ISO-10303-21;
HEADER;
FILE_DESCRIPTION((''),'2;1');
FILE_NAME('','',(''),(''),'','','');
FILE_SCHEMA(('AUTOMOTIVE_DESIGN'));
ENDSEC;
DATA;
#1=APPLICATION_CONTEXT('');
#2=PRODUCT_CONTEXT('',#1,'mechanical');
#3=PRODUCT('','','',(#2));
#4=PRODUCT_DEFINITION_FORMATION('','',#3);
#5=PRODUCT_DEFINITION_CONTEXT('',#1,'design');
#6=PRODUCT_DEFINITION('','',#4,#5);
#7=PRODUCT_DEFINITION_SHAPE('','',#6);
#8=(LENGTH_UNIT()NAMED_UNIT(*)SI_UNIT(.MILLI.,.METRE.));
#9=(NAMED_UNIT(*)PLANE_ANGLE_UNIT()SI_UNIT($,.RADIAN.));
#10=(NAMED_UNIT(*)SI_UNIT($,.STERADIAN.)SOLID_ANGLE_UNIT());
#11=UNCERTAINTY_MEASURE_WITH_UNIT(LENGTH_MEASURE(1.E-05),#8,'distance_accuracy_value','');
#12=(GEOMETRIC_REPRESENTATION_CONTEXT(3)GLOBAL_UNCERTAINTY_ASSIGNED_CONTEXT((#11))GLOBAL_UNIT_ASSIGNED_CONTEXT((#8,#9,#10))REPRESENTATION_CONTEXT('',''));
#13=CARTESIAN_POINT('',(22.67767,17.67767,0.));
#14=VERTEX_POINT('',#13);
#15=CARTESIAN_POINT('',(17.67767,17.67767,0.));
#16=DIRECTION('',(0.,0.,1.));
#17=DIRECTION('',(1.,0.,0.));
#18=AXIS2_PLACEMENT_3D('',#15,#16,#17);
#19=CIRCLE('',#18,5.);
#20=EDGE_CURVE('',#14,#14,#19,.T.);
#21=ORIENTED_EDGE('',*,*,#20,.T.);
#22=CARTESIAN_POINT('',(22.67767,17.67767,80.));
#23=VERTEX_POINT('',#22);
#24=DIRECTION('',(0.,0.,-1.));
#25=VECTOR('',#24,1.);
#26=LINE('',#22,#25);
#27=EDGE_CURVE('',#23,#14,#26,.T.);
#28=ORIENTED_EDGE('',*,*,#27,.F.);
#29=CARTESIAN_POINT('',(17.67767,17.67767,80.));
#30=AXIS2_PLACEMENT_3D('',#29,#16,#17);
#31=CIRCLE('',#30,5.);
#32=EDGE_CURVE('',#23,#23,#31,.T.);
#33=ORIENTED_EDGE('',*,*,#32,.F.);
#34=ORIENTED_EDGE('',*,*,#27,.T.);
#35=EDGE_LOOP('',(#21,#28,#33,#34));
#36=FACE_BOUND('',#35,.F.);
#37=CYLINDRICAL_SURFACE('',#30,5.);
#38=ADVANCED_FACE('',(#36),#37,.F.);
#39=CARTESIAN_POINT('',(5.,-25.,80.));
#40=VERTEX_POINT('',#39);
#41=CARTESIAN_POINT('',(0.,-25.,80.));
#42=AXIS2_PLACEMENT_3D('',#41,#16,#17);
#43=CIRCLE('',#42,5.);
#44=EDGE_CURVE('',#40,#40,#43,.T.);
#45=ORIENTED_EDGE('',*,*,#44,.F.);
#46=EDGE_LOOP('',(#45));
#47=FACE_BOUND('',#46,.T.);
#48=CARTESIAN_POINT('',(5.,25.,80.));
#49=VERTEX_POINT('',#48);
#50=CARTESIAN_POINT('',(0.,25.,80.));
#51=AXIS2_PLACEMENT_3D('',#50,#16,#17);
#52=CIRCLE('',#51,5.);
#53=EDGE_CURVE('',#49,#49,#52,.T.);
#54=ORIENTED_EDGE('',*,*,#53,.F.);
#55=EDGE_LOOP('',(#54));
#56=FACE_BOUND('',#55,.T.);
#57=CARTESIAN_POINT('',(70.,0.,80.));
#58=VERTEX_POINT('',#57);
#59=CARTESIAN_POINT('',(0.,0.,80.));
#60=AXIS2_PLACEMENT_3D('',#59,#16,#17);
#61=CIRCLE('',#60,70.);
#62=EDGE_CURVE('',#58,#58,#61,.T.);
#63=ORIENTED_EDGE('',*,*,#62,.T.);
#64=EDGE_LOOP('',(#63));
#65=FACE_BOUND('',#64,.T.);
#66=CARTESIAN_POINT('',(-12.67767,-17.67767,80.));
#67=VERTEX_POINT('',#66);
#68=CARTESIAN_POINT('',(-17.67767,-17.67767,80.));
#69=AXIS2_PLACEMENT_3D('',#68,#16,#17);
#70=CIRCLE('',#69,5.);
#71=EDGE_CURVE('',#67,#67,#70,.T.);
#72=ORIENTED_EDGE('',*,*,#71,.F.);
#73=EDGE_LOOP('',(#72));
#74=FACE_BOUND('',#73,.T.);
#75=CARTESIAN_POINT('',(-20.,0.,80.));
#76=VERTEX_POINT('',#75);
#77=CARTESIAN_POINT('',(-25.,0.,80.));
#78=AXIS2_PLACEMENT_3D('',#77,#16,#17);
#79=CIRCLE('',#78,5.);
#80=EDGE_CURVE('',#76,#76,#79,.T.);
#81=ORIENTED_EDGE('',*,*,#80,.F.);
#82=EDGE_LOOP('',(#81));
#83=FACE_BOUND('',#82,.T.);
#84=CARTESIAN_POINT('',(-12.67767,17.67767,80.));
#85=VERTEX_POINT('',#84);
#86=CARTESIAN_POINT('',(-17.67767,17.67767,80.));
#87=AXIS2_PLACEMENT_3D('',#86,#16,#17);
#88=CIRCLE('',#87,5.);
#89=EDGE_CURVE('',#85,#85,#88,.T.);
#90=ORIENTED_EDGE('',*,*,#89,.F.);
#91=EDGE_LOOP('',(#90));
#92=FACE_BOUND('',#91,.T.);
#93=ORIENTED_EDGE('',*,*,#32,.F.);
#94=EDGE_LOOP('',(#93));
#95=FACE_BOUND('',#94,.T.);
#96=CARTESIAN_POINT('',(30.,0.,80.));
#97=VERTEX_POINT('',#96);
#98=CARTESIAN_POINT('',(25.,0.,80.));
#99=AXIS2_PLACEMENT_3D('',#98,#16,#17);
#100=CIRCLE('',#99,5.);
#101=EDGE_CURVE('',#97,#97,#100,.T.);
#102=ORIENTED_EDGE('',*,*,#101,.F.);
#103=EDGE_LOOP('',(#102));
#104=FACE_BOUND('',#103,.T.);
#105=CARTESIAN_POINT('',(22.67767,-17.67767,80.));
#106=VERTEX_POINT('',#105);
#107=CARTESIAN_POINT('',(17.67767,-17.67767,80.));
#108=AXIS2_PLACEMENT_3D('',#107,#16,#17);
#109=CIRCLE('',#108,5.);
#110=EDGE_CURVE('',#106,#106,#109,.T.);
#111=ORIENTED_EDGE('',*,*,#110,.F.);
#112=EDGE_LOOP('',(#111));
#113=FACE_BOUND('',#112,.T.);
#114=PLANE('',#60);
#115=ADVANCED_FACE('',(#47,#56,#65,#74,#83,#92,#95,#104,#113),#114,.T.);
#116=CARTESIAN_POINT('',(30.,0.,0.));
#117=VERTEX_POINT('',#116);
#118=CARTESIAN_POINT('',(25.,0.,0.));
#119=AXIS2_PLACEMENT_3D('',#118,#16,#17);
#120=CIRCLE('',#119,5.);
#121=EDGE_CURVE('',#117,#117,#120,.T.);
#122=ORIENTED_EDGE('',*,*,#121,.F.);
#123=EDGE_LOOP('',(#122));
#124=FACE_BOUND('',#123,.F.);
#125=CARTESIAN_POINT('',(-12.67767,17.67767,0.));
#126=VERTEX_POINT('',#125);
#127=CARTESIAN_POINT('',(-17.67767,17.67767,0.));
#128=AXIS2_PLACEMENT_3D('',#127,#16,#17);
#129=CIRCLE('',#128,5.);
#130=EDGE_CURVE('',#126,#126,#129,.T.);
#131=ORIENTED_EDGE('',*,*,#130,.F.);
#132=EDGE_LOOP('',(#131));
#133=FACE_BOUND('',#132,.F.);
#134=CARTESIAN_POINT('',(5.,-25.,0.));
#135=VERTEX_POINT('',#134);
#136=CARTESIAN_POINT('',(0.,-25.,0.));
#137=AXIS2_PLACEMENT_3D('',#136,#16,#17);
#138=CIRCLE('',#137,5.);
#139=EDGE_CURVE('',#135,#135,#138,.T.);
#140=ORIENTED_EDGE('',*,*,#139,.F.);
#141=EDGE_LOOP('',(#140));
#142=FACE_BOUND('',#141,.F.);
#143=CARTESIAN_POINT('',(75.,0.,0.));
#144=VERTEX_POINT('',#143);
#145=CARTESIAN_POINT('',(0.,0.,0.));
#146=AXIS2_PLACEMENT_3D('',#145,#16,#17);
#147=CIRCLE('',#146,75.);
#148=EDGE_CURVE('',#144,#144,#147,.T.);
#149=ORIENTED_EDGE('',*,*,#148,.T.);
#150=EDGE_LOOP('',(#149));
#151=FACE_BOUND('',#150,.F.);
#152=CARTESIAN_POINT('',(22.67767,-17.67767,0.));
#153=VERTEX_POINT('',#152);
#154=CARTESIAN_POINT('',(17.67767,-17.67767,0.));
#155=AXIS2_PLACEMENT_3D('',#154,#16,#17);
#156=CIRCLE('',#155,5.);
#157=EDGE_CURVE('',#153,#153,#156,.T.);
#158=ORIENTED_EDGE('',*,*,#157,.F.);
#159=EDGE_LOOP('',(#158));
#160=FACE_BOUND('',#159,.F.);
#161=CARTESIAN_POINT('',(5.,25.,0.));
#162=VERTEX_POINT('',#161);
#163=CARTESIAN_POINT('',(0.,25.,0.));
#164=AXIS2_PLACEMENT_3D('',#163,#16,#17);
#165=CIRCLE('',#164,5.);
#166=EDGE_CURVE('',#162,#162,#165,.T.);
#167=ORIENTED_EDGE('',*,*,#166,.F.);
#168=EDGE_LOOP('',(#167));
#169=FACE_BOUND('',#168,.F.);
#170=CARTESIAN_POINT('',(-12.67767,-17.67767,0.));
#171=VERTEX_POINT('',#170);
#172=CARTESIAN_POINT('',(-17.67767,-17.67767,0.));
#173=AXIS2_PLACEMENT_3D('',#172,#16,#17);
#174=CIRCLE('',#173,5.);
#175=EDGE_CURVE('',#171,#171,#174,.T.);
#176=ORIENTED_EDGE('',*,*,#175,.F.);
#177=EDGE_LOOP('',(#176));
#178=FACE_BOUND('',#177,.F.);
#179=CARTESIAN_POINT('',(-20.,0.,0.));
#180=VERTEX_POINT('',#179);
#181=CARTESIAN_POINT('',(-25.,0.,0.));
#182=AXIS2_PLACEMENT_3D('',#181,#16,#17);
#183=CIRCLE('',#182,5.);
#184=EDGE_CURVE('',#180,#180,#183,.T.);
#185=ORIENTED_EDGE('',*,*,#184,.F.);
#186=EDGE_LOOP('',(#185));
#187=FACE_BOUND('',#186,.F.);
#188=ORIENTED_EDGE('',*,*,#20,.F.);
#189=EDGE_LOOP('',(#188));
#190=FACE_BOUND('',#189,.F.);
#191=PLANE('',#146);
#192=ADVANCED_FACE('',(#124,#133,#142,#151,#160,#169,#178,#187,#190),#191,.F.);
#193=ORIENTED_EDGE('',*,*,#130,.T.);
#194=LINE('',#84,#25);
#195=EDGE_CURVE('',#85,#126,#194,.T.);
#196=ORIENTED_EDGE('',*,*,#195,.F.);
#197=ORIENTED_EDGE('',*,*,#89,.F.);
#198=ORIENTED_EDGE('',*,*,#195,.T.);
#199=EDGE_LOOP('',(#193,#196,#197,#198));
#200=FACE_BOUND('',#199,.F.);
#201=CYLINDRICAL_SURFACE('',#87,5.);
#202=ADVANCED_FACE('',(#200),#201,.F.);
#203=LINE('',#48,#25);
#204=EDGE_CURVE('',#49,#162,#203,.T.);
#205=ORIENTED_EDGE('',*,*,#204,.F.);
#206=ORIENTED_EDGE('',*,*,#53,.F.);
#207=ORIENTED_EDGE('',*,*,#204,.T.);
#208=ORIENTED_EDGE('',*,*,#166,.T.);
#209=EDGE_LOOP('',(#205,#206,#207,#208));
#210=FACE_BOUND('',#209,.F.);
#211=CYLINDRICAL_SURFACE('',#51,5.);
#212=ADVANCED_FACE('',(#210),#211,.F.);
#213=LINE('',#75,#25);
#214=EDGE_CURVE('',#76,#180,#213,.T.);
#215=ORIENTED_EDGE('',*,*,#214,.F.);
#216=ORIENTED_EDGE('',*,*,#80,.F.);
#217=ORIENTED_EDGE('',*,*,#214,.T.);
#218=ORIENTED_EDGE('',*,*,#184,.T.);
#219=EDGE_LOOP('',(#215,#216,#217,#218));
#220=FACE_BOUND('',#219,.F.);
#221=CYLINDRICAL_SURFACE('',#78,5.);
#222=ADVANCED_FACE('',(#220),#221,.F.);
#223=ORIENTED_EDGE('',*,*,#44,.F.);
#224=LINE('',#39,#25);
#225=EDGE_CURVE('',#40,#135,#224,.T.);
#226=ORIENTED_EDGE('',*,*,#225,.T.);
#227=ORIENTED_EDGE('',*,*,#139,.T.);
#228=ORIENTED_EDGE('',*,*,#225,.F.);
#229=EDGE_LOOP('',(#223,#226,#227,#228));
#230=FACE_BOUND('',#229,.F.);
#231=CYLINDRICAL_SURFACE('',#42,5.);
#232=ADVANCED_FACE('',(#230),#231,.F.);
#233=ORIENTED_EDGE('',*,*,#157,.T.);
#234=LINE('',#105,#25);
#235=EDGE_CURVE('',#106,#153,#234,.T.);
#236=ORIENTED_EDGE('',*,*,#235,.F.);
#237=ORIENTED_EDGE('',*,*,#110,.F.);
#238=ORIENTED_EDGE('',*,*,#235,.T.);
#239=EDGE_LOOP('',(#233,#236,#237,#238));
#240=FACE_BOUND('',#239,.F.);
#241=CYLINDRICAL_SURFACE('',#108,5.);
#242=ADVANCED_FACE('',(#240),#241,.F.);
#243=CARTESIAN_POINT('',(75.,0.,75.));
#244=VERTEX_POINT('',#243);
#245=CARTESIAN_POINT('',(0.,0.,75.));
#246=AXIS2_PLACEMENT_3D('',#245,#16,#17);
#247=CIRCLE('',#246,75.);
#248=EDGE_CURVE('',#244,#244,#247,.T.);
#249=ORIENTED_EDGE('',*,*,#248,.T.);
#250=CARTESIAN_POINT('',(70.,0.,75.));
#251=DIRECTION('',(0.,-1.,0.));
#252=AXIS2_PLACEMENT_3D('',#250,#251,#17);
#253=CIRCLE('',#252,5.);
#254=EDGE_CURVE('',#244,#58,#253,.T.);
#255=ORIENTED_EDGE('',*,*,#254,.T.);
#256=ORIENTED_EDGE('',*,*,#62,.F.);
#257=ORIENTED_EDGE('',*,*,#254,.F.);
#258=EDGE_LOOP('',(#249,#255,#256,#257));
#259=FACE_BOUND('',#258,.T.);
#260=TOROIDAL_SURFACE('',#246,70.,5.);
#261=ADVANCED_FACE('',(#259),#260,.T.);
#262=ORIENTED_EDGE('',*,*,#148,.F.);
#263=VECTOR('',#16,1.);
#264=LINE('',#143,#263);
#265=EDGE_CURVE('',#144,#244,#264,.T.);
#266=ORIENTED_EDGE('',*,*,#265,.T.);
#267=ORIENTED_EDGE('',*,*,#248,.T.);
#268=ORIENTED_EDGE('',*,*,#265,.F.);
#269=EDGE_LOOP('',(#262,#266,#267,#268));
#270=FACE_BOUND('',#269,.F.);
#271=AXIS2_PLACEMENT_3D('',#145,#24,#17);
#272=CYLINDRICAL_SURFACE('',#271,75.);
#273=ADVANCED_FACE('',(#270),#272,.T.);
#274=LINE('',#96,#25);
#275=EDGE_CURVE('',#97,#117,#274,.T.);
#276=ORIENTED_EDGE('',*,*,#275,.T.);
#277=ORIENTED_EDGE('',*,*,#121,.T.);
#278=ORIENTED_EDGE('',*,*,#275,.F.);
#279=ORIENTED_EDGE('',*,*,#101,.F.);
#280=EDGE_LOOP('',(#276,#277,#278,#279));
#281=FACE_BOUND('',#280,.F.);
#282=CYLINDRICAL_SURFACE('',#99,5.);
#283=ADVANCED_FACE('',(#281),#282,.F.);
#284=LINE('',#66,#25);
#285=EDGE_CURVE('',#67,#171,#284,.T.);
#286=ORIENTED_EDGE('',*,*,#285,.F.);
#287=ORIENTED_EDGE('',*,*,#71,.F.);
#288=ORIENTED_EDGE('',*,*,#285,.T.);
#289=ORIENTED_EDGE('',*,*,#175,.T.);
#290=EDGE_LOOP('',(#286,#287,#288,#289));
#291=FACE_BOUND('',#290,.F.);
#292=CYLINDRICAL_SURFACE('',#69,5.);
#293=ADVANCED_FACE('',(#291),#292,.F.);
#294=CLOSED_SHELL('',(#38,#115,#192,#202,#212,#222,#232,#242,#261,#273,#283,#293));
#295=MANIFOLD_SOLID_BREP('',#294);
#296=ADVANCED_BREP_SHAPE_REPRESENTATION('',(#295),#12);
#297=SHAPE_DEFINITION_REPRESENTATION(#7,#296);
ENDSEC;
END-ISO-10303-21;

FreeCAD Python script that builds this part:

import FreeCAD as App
import Part
import Sketcher
Q = App.Units.Quantity


def edges_at(feature, points):
    """Names of the edges that pass closest to the given points."""
    edges = feature.Shape.Edges
    near = lambda p: min(range(len(edges)), key=lambda i: edges[i].distToShape(Part.Vertex(*p))[0])
    return sorted({f"Edge{near(p) + 1}" for p in points})

doc = App.newDocument("Part")
body = doc.addObject("PartDesign::Body", "Body")

sketch1 = body.newObject("Sketcher::SketchObject", "Sketch")
sketch1.AttachmentSupport = (doc.getObject("XY_Plane"), [""])
sketch1.MapMode = "FlatFace"
sketch1.addGeometry(Part.Circle(App.Vector(0, 0, 0), App.Vector(0, 0, 1), 75), False)
sketch1.addConstraint([
    Sketcher.Constraint("Coincident", 0, 3, -1, 1),
    Sketcher.Constraint("Diameter", 0, Q("150 mm")),
])
pad1 = body.newObject("PartDesign::Pad", "Pad")
pad1.Profile = sketch1
pad1.Length = 80
doc.recompute()

fillet = body.newObject("PartDesign::Fillet", "Fillet")
fillet.Base = (pad1, edges_at(pad1, [(-75, 0, 80)]))
fillet.Radius = 5

sketch2 = body.newObject("Sketcher::SketchObject", "Sketch001")
sketch2.AttachmentSupport = (doc.getObject("XY_Plane"), [""])
sketch2.MapMode = "FlatFace"
sketch2.AttachmentOffset = App.Placement(App.Vector(0, 0, 80), App.Rotation())
sketch2.addGeometry([
    Part.Circle(App.Vector(-17.67767, 17.67767, 0), App.Vector(0, 0, 1), 5),
    Part.Circle(App.Vector(0, 25, 0), App.Vector(0, 0, 1), 5),
    Part.Circle(App.Vector(17.67767, 17.67767, 0), App.Vector(0, 0, 1), 5),
    Part.Circle(App.Vector(25, 0, 0), App.Vector(0, 0, 1), 5),
    Part.Circle(App.Vector(0, -25, 0), App.Vector(0, 0, 1), 5),
    Part.Circle(App.Vector(17.67767, -17.67767, 0), App.Vector(0, 0, 1), 5),
    Part.Circle(App.Vector(-17.67767, -17.67767, 0), App.Vector(0, 0, 1), 5),
    Part.Circle(App.Vector(-25, 0, 0), App.Vector(0, 0, 1), 5),
], False)
sketch2.addConstraint([
    Sketcher.Constraint("Equal", 0, 1),
    Sketcher.Constraint("Equal", 1, 2),
    Sketcher.Constraint("Equal", 2, 3),
    Sketcher.Constraint("Equal", 3, 4),
    Sketcher.Constraint("Equal", 4, 5),
    Sketcher.Constraint("Equal", 5, 6),
    Sketcher.Constraint("Equal", 6, 7),
    Sketcher.Constraint("Symmetric", 1, 3, 4, 3, -1, 1),
    Sketcher.Constraint("Symmetric", 0, 3, 5, 3, -1, 1),
    Sketcher.Constraint("Symmetric", 2, 3, 6, 3, -1, 1),
    Sketcher.Constraint("Symmetric", 3, 3, 7, 3, -1, 1),
    Sketcher.Constraint("Symmetric", 0, 3, 2, 3, -2),
    Sketcher.Constraint("PointOnObject", 1, 3, -2),
    Sketcher.Constraint("PointOnObject", 3, 3, -1),
    Sketcher.Constraint("Diameter", 0, Q("10 mm")),
    Sketcher.Constraint("DistanceY", -1, 1, 1, 3, Q("25 mm")),
    Sketcher.Constraint("DistanceX", -1, 1, 3, 3, Q("25 mm")),
    Sketcher.Constraint("DistanceX", 0, 3, -1, 1, Q("17.67767 mm")),
    Sketcher.Constraint("DistanceY", -1, 1, 0, 3, Q("17.67767 mm")),
])
pocket1 = body.newObject("PartDesign::Pocket", "Pocket")
pocket1.Profile = sketch2
pocket1.Type = "ThroughAll"

doc.recompute()
